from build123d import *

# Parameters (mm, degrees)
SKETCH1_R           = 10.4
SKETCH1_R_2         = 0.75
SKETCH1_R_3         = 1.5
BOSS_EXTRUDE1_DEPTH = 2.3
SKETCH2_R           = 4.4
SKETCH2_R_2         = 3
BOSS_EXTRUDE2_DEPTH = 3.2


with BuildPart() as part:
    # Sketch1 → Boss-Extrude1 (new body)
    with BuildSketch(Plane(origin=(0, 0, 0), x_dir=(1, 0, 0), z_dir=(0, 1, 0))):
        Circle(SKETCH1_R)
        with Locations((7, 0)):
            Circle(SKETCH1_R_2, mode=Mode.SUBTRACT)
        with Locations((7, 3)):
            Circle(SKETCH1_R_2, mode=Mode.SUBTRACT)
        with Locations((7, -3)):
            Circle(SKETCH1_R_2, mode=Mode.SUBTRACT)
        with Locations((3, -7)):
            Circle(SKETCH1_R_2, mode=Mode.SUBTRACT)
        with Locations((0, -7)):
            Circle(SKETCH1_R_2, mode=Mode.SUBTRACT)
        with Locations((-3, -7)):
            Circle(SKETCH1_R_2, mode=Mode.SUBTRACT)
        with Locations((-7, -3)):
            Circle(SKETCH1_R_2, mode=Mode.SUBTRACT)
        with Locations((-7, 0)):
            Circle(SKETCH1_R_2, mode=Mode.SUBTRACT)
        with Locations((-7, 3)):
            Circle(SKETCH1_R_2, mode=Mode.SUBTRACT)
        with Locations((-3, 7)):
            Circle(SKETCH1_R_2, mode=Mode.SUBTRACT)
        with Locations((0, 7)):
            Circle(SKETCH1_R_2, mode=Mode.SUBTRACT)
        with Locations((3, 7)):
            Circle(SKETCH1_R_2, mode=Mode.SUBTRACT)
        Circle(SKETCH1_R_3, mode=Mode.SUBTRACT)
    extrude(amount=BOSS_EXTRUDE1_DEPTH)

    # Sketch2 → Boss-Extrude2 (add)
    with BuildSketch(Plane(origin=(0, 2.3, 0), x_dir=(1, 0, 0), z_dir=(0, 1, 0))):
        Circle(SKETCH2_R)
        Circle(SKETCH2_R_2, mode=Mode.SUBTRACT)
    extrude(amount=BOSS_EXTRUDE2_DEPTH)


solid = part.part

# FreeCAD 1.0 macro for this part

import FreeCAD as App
import Part
import Sketcher

V = App.Vector
Q = App.Units.Quantity

doc = App.newDocument("Part")
body = doc.addObject("PartDesign::Body", "Body")

# Sketch on XZ plane
sketch1 = doc.addObject("Sketcher::SketchObject", "Sketch")
body.addObject(sketch1)
sketch1.AttachmentSupport = (doc.XZ_Plane, [""])
sketch1.MapMode = "FlatFace"
sketch1.addGeometry(Part.Circle(V(0, 0, 0), V(0, 0, 1), 10.4), False)
sketch1.addGeometry(Part.Circle(V(-3, 7, 0), V(0, 0, 1), 0.75), False)
sketch1.addGeometry(Part.Circle(V(-7, 3, 0), V(0, 0, 1), 0.75), False)
sketch1.addGeometry(Part.Circle(V(0, 7, 0), V(0, 0, 1), 0.75), False)
sketch1.addGeometry(Part.Circle(V(3, 7, 0), V(0, 0, 1), 0.75), False)
sketch1.addGeometry(Part.Circle(V(7, 3, 0), V(0, 0, 1), 0.75), False)
sketch1.addGeometry(Part.Circle(V(-7, 0, 0), V(0, 0, 1), 0.75), False)
sketch1.addGeometry(Part.Circle(V(-7, -3, 0), V(0, 0, 1), 0.75), False)
sketch1.addGeometry(Part.Circle(V(-3, -7, 0), V(0, 0, 1), 0.75), False)
sketch1.addGeometry(Part.Circle(V(0, 0, 0), V(0, 0, 1), 1.5), False)
sketch1.addGeometry(Part.Circle(V(7, 0, 0), V(0, 0, 1), 0.75), False)
sketch1.addGeometry(Part.Circle(V(7, -3, 0), V(0, 0, 1), 0.75), False)
sketch1.addGeometry(Part.Circle(V(0, -7, 0), V(0, 0, 1), 0.75), False)
sketch1.addGeometry(Part.Circle(V(3, -7, 0), V(0, 0, 1), 0.75), False)
sketch1.addConstraint(Sketcher.Constraint("Coincident", 0, 3, -1, 1))
sketch1.addConstraint(Sketcher.Constraint("Coincident", 9, 3, -1, 1))
sketch1.addConstraint(Sketcher.Constraint("Equal", 1, 2))
sketch1.addConstraint(Sketcher.Constraint("Equal", 2, 3))
sketch1.addConstraint(Sketcher.Constraint("Equal", 3, 4))
sketch1.addConstraint(Sketcher.Constraint("Equal", 4, 5))
sketch1.addConstraint(Sketcher.Constraint("Equal", 5, 6))
sketch1.addConstraint(Sketcher.Constraint("Equal", 6, 7))
sketch1.addConstraint(Sketcher.Constraint("Equal", 7, 8))
sketch1.addConstraint(Sketcher.Constraint("Equal", 8, 10))
sketch1.addConstraint(Sketcher.Constraint("Equal", 10, 11))
sketch1.addConstraint(Sketcher.Constraint("Equal", 11, 12))
sketch1.addConstraint(Sketcher.Constraint("Equal", 12, 13))
sketch1.addConstraint(Sketcher.Constraint("Symmetric", 5, 3, 7, 3, -1, 1))
sketch1.addConstraint(Sketcher.Constraint("Symmetric", 4, 3, 8, 3, -1, 1))
sketch1.addConstraint(Sketcher.Constraint("Symmetric", 6, 3, 10, 3, -1, 1))
sketch1.addConstraint(Sketcher.Constraint("Symmetric", 2, 3, 11, 3, -1, 1))
sketch1.addConstraint(Sketcher.Constraint("Symmetric", 3, 3, 12, 3, -1, 1))
sketch1.addConstraint(Sketcher.Constraint("Symmetric", 1, 3, 13, 3, -1, 1))
sketch1.addConstraint(Sketcher.Constraint("Symmetric", 1, 3, 4, 3, -2))
sketch1.addConstraint(Sketcher.Constraint("Symmetric", 2, 3, 5, 3, -2))
sketch1.addConstraint(Sketcher.Constraint("PointOnObject", 3, 3, -2))
sketch1.addConstraint(Sketcher.Constraint("PointOnObject", 6, 3, -1))
sketch1.addConstraint(Sketcher.Constraint("Horizontal", 1, 3, 3, 3))
sketch1.addConstraint(Sketcher.Constraint("Vertical", 2, 3, 6, 3))
sketch1.addConstraint(Sketcher.Constraint("Diameter", 9, Q("3 mm")))
sketch1.addConstraint(Sketcher.Constraint("Diameter", 0, Q("20.8 mm")))
sketch1.addConstraint(Sketcher.Constraint("Diameter", 1, Q("1.5 mm")))
sketch1.addConstraint(Sketcher.Constraint("DistanceX", 1, 3, -1, 1, Q("3 mm")))
sketch1.addConstraint(Sketcher.Constraint("DistanceY", -1, 1, 1, 3, Q("7 mm")))
sketch1.addConstraint(Sketcher.Constraint("DistanceX", 2, 3, -1, 1, Q("7 mm")))
sketch1.addConstraint(Sketcher.Constraint("DistanceY", -1, 1, 2, 3, Q("3 mm")))
pad1 = doc.addObject("PartDesign::Pad", "Pad")
body.addObject(pad1)
pad1.Profile = sketch1
pad1.Length = 2.3
pad1.Reversed = True

# Sketch on XZ plane
sketch2 = doc.addObject("Sketcher::SketchObject", "Sketch001")
body.addObject(sketch2)
sketch2.AttachmentSupport = (doc.XZ_Plane, [""])
sketch2.MapMode = "FlatFace"
sketch2.AttachmentOffset = App.Placement(V(0, 0, -2.3), App.Rotation())
sketch2.addGeometry(Part.Circle(V(0, 0, 0), V(0, 0, 1), 4.4), False)
sketch2.addGeometry(Part.Circle(V(0, 0, 0), V(0, 0, 1), 3), False)
sketch2.addConstraint(Sketcher.Constraint("Coincident", 0, 3, -1, 1))
sketch2.addConstraint(Sketcher.Constraint("Coincident", 1, 3, -1, 1))
sketch2.addConstraint(Sketcher.Constraint("Diameter", 1, Q("6 mm")))
sketch2.addConstraint(Sketcher.Constraint("Diameter", 0, Q("8.8 mm")))
pad2 = doc.addObject("PartDesign::Pad", "Pad001")
body.addObject(pad2)
pad2.Profile = sketch2
pad2.Length = 3.2
pad2.Reversed = True

doc.recompute()
